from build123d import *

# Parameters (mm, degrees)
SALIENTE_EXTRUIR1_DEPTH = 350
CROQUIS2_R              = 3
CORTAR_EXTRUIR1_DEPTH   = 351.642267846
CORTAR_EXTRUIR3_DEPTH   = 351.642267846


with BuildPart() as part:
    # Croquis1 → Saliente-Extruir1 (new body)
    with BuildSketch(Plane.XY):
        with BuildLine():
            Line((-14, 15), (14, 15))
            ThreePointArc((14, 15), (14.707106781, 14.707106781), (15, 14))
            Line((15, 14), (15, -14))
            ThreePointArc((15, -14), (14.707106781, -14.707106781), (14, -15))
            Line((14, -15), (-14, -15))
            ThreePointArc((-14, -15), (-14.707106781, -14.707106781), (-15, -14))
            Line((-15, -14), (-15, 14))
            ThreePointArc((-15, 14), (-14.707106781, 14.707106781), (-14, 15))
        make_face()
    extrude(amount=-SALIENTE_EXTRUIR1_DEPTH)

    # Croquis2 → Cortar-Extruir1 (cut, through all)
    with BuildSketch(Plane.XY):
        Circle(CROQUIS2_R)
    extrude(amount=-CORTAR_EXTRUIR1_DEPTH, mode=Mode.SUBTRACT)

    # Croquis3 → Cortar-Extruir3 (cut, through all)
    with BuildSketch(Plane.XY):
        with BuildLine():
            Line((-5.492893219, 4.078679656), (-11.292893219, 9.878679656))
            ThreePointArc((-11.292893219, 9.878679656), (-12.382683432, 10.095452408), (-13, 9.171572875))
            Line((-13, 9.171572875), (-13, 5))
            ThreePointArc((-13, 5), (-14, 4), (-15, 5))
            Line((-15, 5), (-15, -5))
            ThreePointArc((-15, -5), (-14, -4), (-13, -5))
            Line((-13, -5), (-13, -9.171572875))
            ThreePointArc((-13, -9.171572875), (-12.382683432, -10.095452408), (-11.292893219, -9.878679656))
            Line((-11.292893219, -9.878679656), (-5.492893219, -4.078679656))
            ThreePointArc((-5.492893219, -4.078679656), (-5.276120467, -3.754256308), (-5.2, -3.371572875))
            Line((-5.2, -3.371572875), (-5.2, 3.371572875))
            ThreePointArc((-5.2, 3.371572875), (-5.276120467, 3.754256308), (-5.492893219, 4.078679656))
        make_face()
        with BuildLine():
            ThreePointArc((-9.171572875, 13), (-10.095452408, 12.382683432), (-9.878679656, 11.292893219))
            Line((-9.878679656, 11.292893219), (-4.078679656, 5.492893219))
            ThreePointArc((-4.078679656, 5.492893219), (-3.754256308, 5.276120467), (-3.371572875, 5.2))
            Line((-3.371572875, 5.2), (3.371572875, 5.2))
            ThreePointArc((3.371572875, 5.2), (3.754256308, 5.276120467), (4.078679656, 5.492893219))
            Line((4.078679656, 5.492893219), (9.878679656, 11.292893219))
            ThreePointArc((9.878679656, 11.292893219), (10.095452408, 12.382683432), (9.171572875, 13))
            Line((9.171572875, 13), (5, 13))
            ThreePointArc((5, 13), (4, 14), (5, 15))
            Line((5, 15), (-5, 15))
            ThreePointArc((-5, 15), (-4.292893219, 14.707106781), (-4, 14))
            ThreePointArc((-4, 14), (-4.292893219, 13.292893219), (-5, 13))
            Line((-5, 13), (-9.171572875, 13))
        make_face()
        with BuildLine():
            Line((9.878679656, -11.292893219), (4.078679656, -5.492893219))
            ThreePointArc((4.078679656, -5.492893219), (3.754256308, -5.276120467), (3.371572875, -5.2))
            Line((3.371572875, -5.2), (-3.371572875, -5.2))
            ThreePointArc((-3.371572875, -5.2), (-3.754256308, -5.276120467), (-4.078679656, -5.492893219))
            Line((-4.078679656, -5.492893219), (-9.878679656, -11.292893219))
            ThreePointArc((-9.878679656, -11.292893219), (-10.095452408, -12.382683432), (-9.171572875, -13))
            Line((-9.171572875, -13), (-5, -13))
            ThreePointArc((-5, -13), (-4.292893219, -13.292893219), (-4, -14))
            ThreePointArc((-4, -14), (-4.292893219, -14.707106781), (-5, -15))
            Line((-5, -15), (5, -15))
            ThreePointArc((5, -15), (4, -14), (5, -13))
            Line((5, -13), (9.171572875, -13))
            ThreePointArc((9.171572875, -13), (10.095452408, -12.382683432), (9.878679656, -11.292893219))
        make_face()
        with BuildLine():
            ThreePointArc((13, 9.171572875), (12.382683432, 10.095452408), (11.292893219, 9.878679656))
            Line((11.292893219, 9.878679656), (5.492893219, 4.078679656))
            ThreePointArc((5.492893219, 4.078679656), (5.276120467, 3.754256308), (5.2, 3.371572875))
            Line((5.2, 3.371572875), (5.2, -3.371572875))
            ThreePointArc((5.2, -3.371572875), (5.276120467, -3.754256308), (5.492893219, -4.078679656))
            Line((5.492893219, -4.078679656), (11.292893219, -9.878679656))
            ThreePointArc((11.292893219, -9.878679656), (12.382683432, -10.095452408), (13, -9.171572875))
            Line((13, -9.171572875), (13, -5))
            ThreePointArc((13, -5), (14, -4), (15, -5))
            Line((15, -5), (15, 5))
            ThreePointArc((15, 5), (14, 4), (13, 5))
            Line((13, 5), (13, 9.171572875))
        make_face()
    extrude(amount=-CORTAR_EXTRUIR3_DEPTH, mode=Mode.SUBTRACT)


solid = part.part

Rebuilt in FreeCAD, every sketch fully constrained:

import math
import FreeCAD as App
import Part
import Sketcher

doc = App.newDocument("Part")
params = doc.addObject("Spreadsheet::Sheet", "Params")
for row, (alias, value) in enumerate([
    ("sketch1_radius", "1 mm"),
    ("sketch1_width", "28 mm"),
    ("pad1_length", "350 mm"),
    ("sketch2_diameter", "6 mm"),
    ("sketch3_radius", "1 mm"),
    ("sketch3_width", "10 mm"),
], start=1):
    params.set(f"A{row}", alias)
    params.set(f"B{row}", "=" + value)
    params.setAlias(f"B{row}", alias)

body = doc.addObject("PartDesign::Body", "Body")

# Sketch on XY plane
sketch1 = body.newObject("Sketcher::SketchObject", "Sketch")
sketch1.AttachmentSupport = (doc.getObject("XY_Plane"), [""])
sketch1.MapMode = "FlatFace"
sketch1.addGeometry([
    Part.LineSegment(App.Vector(14, 15, 0), App.Vector(-14, 15, 0)),  # 0
    Part.ArcOfCircle(Part.Circle(App.Vector(-14, 14, 0), App.Vector(0, 0, 1), 1), math.radians(90), math.radians(180)),  # 1
    Part.LineSegment(App.Vector(-15, 14, 0), App.Vector(-15, -14, 0)),  # 2
    Part.ArcOfCircle(Part.Circle(App.Vector(-14, -14, 0), App.Vector(0, 0, 1), 1), math.radians(-180), math.radians(-90)),  # 3
    Part.LineSegment(App.Vector(-14, -15, 0), App.Vector(14, -15, 0)),  # 4
    Part.ArcOfCircle(Part.Circle(App.Vector(14, -14, 0), App.Vector(0, 0, 1), 1), math.radians(-90), math.radians(0)),  # 5
    Part.LineSegment(App.Vector(15, -14, 0), App.Vector(15, 14, 0)),  # 6
    Part.ArcOfCircle(Part.Circle(App.Vector(14, 14, 0), App.Vector(0, 0, 1), 1), math.radians(0), math.radians(90)),  # 7
], False)
sketch1.addConstraint([
    Sketcher.Constraint("Tangent", 0, 2, 1, 1),
    Sketcher.Constraint("Tangent", 1, 2, 2, 1),
    Sketcher.Constraint("Tangent", 2, 2, 3, 1),
    Sketcher.Constraint("Tangent", 3, 2, 4, 1),
    Sketcher.Constraint("Tangent", 4, 2, 5, 1),
    Sketcher.Constraint("Tangent", 5, 2, 6, 1),
    Sketcher.Constraint("Tangent", 6, 2, 7, 1),
    Sketcher.Constraint("Tangent", 7, 2, 0, 1),
    Sketcher.Constraint("Horizontal", 0),
    Sketcher.Constraint("Vertical", 2),
    Sketcher.Constraint("Horizontal", 4),
    Sketcher.Constraint("Vertical", 6),
    Sketcher.Constraint("Equal", 1, 3),
    Sketcher.Constraint("Equal", 3, 5),
    Sketcher.Constraint("Equal", 5, 7),
    Sketcher.Constraint("Symmetric", 1, 3, 5, 3, -1, 1),
    Sketcher.Constraint("Equal", 4, 2),
    Sketcher.Constraint("Radius", 1, 1.0),
    Sketcher.Constraint("DistanceX", 0, 2, 0, 1, 28.0),
])
sketch1.setExpression("Constraints[17]", "Params.sketch1_radius")
sketch1.setExpression("Constraints[18]", "Params.sketch1_width")
pad1 = body.newObject("PartDesign::Pad", "Pad")
pad1.Profile = sketch1
pad1.setExpression("Length", "Params.pad1_length")
pad1.Reversed = True

# Sketch on XY plane
sketch2 = body.newObject("Sketcher::SketchObject", "Sketch001")
sketch2.AttachmentSupport = (doc.getObject("XY_Plane"), [""])
sketch2.MapMode = "FlatFace"
sketch2.addGeometry(Part.Circle(App.Vector(0, 0, 0), App.Vector(0, 0, 1), 3), False)
sketch2.addConstraint([
    Sketcher.Constraint("Coincident", 0, 3, -1, 1),
    Sketcher.Constraint("Diameter", 0, 6.0),
])
sketch2.setExpression("Constraints[1]", "Params.sketch2_diameter")
pocket1 = body.newObject("PartDesign::Pocket", "Pocket")
pocket1.Profile = sketch2
pocket1.Type = "ThroughAll"

# Sketch on XY plane
sketch3 = body.newObject("Sketcher::SketchObject", "Sketch002")
sketch3.AttachmentSupport = (doc.getObject("XY_Plane"), [""])
sketch3.MapMode = "FlatFace"
sketch3.addGeometry([
    Part.LineSegment(App.Vector(-5.5, 4.1, 0), App.Vector(-11.3, 9.9, 0)),  # 0
    Part.ArcOfCircle(Part.Circle(App.Vector(-12, 9.2, 0), App.Vector(0, 0, 1), 1), math.radians(45), math.radians(180)),  # 1
    Part.LineSegment(App.Vector(-13, 9.2, 0), App.Vector(-13, 5, 0)),  # 2
    Part.ArcOfCircle(Part.Circle(App.Vector(-14, 5, 0), App.Vector(0, 0, 1), 1), math.radians(180), math.radians(360)),  # 3
    Part.LineSegment(App.Vector(-15, 5, 0), App.Vector(-15, -5, 0)),  # 4
    Part.ArcOfCircle(Part.Circle(App.Vector(-14, -5, 0), App.Vector(0, 0, 1), 1), math.radians(0), math.radians(180)),  # 5
    Part.LineSegment(App.Vector(-13, -5, 0), App.Vector(-13, -9.2, 0)),  # 6
    Part.ArcOfCircle(Part.Circle(App.Vector(-12, -9.2, 0), App.Vector(0, 0, 1), 1), math.radians(180), math.radians(315)),  # 7
    Part.LineSegment(App.Vector(-11.3, -9.9, 0), App.Vector(-5.5, -4.1, 0)),  # 8
    Part.ArcOfCircle(Part.Circle(App.Vector(-6.2, -3.4, 0), App.Vector(0, 0, 1), 1), math.radians(-45), math.radians(0)),  # 9
    Part.LineSegment(App.Vector(-5.2, -3.4, 0), App.Vector(-5.2, 3.4, 0)),  # 10
    Part.ArcOfCircle(Part.Circle(App.Vector(-6.2, 3.4, 0), App.Vector(0, 0, 1), 1), math.radians(0), math.radians(45)),  # 11
    Part.ArcOfCircle(Part.Circle(App.Vector(-9.2, 12, 0), App.Vector(0, 0, 1), 1), math.radians(90), math.radians(225)),  # 12
    Part.LineSegment(App.Vector(-9.9, 11.3, 0), App.Vector(-4.1, 5.5, 0)),  # 13
    Part.ArcOfCircle(Part.Circle(App.Vector(-3.4, 6.2, 0), App.Vector(0, 0, 1), 1), math.radians(-135), math.radians(-90)),  # 14
    Part.LineSegment(App.Vector(-3.4, 5.2, 0), App.Vector(3.4, 5.2, 0)),  # 15
    Part.ArcOfCircle(Part.Circle(App.Vector(3.4, 6.2, 0), App.Vector(0, 0, 1), 1), math.radians(-90), math.radians(-45)),  # 16
    Part.LineSegment(App.Vector(4.1, 5.5, 0), App.Vector(9.9, 11.3, 0)),  # 17
    Part.ArcOfCircle(Part.Circle(App.Vector(9.2, 12, 0), App.Vector(0, 0, 1), 1), math.radians(-45), math.radians(90)),  # 18
    Part.LineSegment(App.Vector(9.2, 13, 0), App.Vector(5, 13, 0)),  # 19
    Part.ArcOfCircle(Part.Circle(App.Vector(5, 14, 0), App.Vector(0, 0, 1), 1), math.radians(90), math.radians(270)),  # 20
    Part.LineSegment(App.Vector(5, 15, 0), App.Vector(-5, 15, 0)),  # 21
    Part.ArcOfCircle(Part.Circle(App.Vector(-5, 14, 0), App.Vector(0, 0, 1), 1), math.radians(0), math.radians(90)),  # 22
    Part.ArcOfCircle(Part.Circle(App.Vector(-5, 14, 0), App.Vector(0, 0, 1), 1), math.radians(-90), math.radians(0)),  # 23
    Part.LineSegment(App.Vector(-5, 13, 0), App.Vector(-9.2, 13, 0)),  # 24
    Part.LineSegment(App.Vector(9.9, -11.3, 0), App.Vector(4.1, -5.5, 0)),  # 25
    Part.ArcOfCircle(Part.Circle(App.Vector(3.4, -6.2, 0), App.Vector(0, 0, 1), 1), math.radians(45), math.radians(90)),  # 26
    Part.LineSegment(App.Vector(3.4, -5.2, 0), App.Vector(-3.4, -5.2, 0)),  # 27
    Part.ArcOfCircle(Part.Circle(App.Vector(-3.4, -6.2, 0), App.Vector(0, 0, 1), 1), math.radians(90), math.radians(135)),  # 28
    Part.LineSegment(App.Vector(-4.1, -5.5, 0), App.Vector(-9.9, -11.3, 0)),  # 29
    Part.ArcOfCircle(Part.Circle(App.Vector(-9.2, -12, 0), App.Vector(0, 0, 1), 1), math.radians(135), math.radians(270)),  # 30
    Part.LineSegment(App.Vector(-9.2, -13, 0), App.Vector(-5, -13, 0)),  # 31
    Part.ArcOfCircle(Part.Circle(App.Vector(-5, -14, 0), App.Vector(0, 0, 1), 1), math.radians(0), math.radians(90)),  # 32
    Part.ArcOfCircle(Part.Circle(App.Vector(-5, -14, 0), App.Vector(0, 0, 1), 1), math.radians(-90), math.radians(0)),  # 33
    Part.LineSegment(App.Vector(-5, -15, 0), App.Vector(5, -15, 0)),  # 34
    Part.ArcOfCircle(Part.Circle(App.Vector(5, -14, 0), App.Vector(0, 0, 1), 1), math.radians(90), math.radians(270)),  # 35
    Part.LineSegment(App.Vector(5, -13, 0), App.Vector(9.2, -13, 0)),  # 36
    Part.ArcOfCircle(Part.Circle(App.Vector(9.2, -12, 0), App.Vector(0, 0, 1), 1), math.radians(-90), math.radians(45)),  # 37
    Part.ArcOfCircle(Part.Circle(App.Vector(12, 9.2, 0), App.Vector(0, 0, 1), 1), math.radians(0), math.radians(135)),  # 38
    Part.LineSegment(App.Vector(11.3, 9.9, 0), App.Vector(5.5, 4.1, 0)),  # 39
    Part.ArcOfCircle(Part.Circle(App.Vector(6.2, 3.4, 0), App.Vector(0, 0, 1), 1), math.radians(135), math.radians(180)),  # 40
    Part.LineSegment(App.Vector(5.2, 3.4, 0), App.Vector(5.2, -3.4, 0)),  # 41
    Part.ArcOfCircle(Part.Circle(App.Vector(6.2, -3.4, 0), App.Vector(0, 0, 1), 1), math.radians(180), math.radians(225)),  # 42
    Part.LineSegment(App.Vector(5.5, -4.1, 0), App.Vector(11.3, -9.9, 0)),  # 43
    Part.ArcOfCircle(Part.Circle(App.Vector(12, -9.2, 0), App.Vector(0, 0, 1), 1), math.radians(-135), math.radians(0)),  # 44
    Part.LineSegment(App.Vector(13, -9.2, 0), App.Vector(13, -5, 0)),  # 45
    Part.ArcOfCircle(Part.Circle(App.Vector(14, -5, 0), App.Vector(0, 0, 1), 1), math.radians(0), math.radians(180)),  # 46
    Part.LineSegment(App.Vector(15, -5, 0), App.Vector(15, 5, 0)),  # 47
    Part.ArcOfCircle(Part.Circle(App.Vector(14, 5, 0), App.Vector(0, 0, 1), 1), math.radians(180), math.radians(360)),  # 48
    Part.LineSegment(App.Vector(13, 5, 0), App.Vector(13, 9.2, 0)),  # 49
], False)
sketch3.addConstraint([
    Sketcher.Constraint("Tangent", 0, 2, 1, 1),
    Sketcher.Constraint("Tangent", 1, 2, 2, 1),
    Sketcher.Constraint("Tangent", 2, 2, 3, 2),
    Sketcher.Constraint("Tangent", 3, 1, 4, 1),
    Sketcher.Constraint("Tangent", 4, 2, 5, 2),
    Sketcher.Constraint("Tangent", 5, 1, 6, 1),
    Sketcher.Constraint("Tangent", 6, 2, 7, 1),
    Sketcher.Constraint("Tangent", 7, 2, 8, 1),
    Sketcher.Constraint("Tangent", 8, 2, 9, 1),
    Sketcher.Constraint("Tangent", 9, 2, 10, 1),
    Sketcher.Constraint("Tangent", 10, 2, 11, 1),
    Sketcher.Constraint("Tangent", 11, 2, 0, 1),
    Sketcher.Constraint("Tangent", 12, 2, 13, 1),
    Sketcher.Constraint("Tangent", 13, 2, 14, 1),
    Sketcher.Constraint("Tangent", 14, 2, 15, 1),
    Sketcher.Constraint("Tangent", 15, 2, 16, 1),
    Sketcher.Constraint("Tangent", 16, 2, 17, 1),
    Sketcher.Constraint("Tangent", 17, 2, 18, 1),
    Sketcher.Constraint("Tangent", 18, 2, 19, 1),
    Sketcher.Constraint("Tangent", 19, 2, 20, 2),
    Sketcher.Constraint("Tangent", 20, 1, 21, 1),
    Sketcher.Constraint("Tangent", 21, 2, 22, 2),
    Sketcher.Constraint("Tangent", 22, 1, 23, 2),
    Sketcher.Constraint("Tangent", 23, 1, 24, 1),
    Sketcher.Constraint("Tangent", 24, 2, 12, 1),
    Sketcher.Constraint("Tangent", 25, 2, 26, 1),
    Sketcher.Constraint("Tangent", 26, 2, 27, 1),
    Sketcher.Constraint("Tangent", 27, 2, 28, 1),
    Sketcher.Constraint("Tangent", 28, 2, 29, 1),
    Sketcher.Constraint("Tangent", 29, 2, 30, 1),
    Sketcher.Constraint("Tangent", 30, 2, 31, 1),
    Sketcher.Constraint("Tangent", 31, 2, 32, 2),
    Sketcher.Constraint("Tangent", 32, 1, 33, 2),
    Sketcher.Constraint("Tangent", 33, 1, 34, 1),
    Sketcher.Constraint("Tangent", 34, 2, 35, 2),
    Sketcher.Constraint("Tangent", 35, 1, 36, 1),
    Sketcher.Constraint("Tangent", 36, 2, 37, 1),
    Sketcher.Constraint("Tangent", 37, 2, 25, 1),
    Sketcher.Constraint("Tangent", 38, 2, 39, 1),
    Sketcher.Constraint("Tangent", 39, 2, 40, 1),
    Sketcher.Constraint("Tangent", 40, 2, 41, 1),
    Sketcher.Constraint("Tangent", 41, 2, 42, 1),
    Sketcher.Constraint("Tangent", 42, 2, 43, 1),
    Sketcher.Constraint("Tangent", 43, 2, 44, 1),
    Sketcher.Constraint("Tangent", 44, 2, 45, 1),
    Sketcher.Constraint("Tangent", 45, 2, 46, 2),
    Sketcher.Constraint("Tangent", 46, 1, 47, 1),
    Sketcher.Constraint("Tangent", 47, 2, 48, 2),
    Sketcher.Constraint("Tangent", 48, 1, 49, 1),
    Sketcher.Constraint("Tangent", 49, 2, 38, 1),
    Sketcher.Constraint("Vertical", 2),
    Sketcher.Constraint("Vertical", 4),
    Sketcher.Constraint("Vertical", 6),
    Sketcher.Constraint("Vertical", 10),
    Sketcher.Constraint("Horizontal", 15),
    Sketcher.Constraint("Horizontal", 19),
    Sketcher.Constraint("Horizontal", 21),
    Sketcher.Constraint("Horizontal", 24),
    Sketcher.Constraint("Horizontal", 27),
    Sketcher.Constraint("Horizontal", 31),
    Sketcher.Constraint("Horizontal", 34),
    Sketcher.Constraint("Horizontal", 36),
    Sketcher.Constraint("Vertical", 41),
    Sketcher.Constraint("Vertical", 45),
    Sketcher.Constraint("Vertical", 47),
    Sketcher.Constraint("Vertical", 49),
    Sketcher.Constraint("Equal", 1, 3),
    Sketcher.Constraint("Equal", 3, 5),
    Sketcher.Constraint("Equal", 5, 7),
    Sketcher.Constraint("Equal", 7, 9),
    Sketcher.Constraint("Equal", 9, 11),
    Sketcher.Constraint("Equal", 11, 12),
    Sketcher.Constraint("Equal", 12, 14),
    Sketcher.Constraint("Equal", 14, 16),
    Sketcher.Constraint("Equal", 16, 18),
    Sketcher.Constraint("Equal", 18, 20),
    Sketcher.Constraint("Equal", 20, 22),
    Sketcher.Constraint("Equal", 22, 23),
    Sketcher.Constraint("Equal", 23, 26),
    Sketcher.Constraint("Equal", 26, 28),
    Sketcher.Constraint("Equal", 28, 30),
    Sketcher.Constraint("Equal", 30, 32),
    Sketcher.Constraint("Equal", 32, 33),
    Sketcher.Constraint("Equal", 33, 35),
    Sketcher.Constraint("Equal", 35, 37),
    Sketcher.Constraint("Equal", 37, 38),
    Sketcher.Constraint("Equal", 38, 40),
    Sketcher.Constraint("Equal", 40, 42),
    Sketcher.Constraint("Equal", 42, 44),
    Sketcher.Constraint("Equal", 44, 46),
    Sketcher.Constraint("Equal", 46, 48),
    Sketcher.Constraint("Symmetric", 14, 3, 26, 3, -1, 1),
    Sketcher.Constraint("Symmetric", 18, 3, 30, 3, -1, 1),
    Sketcher.Constraint("Symmetric", 7, 3, 38, 3, -1, 1),
    Sketcher.Constraint("Symmetric", 9, 3, 40, 3, -1, 1),
    Sketcher.Constraint("Symmetric", 11, 2, 42, 2, -1, 1),
    Sketcher.Constraint("Symmetric", 13, 2, 16, 2, -2),
    Sketcher.Constraint("Symmetric", 25, 2, 28, 2, -2),
    Sketcher.Constraint("Symmetric", 0, 2, 38, 2, -2),
    Sketcher.Constraint("Symmetric", 22, 1, 32, 1, -1),
    Sketcher.Constraint("Perpendicular", 0, 8),
    Sketcher.Constraint("Perpendicular", 8, 13),
    Sketcher.Constraint("Horizontal", 5, 3, 46, 3),
    Sketcher.Constraint("Horizontal", 3, 3, 48, 3),
    Sketcher.Constraint("Horizontal", 23, 3, 22, 1),
    Sketcher.Constraint("Vertical", 20, 3, 35, 3),
    Sketcher.Constraint("Equal", 19, 24),
    Sketcher.Constraint("Equal", 36, 2),
    Sketcher.Constraint("Equal", 34, 4),
    Sketcher.Constraint("Equal", 2, 6),
    Sketcher.Constraint("Equal", 27, 10),
    Sketcher.Constraint("Radius", 1, 1.0),
    Sketcher.Constraint("DistanceX", 21, 2, 21, 1, 10.0),
    Sketcher.Constraint("DistanceX", 1, 3, -1, 1, 12.0),
    Sketcher.Constraint("DistanceY", -1, 1, 12, 3, 12.0),
    Sketcher.Constraint("DistanceX", 9, 3, -1, 1, 6.2),
    Sketcher.Constraint("DistanceX", 15, 1, 15, 2, 6.743146),
])
sketch3.setExpression("Constraints[111]", "Params.sketch3_radius")
sketch3.setExpression("Constraints[112]", "Params.sketch3_width")
pocket2 = body.newObject("PartDesign::Pocket", "Pocket001")
pocket2.Profile = sketch3
pocket2.Type = "ThroughAll"

doc.recompute()
